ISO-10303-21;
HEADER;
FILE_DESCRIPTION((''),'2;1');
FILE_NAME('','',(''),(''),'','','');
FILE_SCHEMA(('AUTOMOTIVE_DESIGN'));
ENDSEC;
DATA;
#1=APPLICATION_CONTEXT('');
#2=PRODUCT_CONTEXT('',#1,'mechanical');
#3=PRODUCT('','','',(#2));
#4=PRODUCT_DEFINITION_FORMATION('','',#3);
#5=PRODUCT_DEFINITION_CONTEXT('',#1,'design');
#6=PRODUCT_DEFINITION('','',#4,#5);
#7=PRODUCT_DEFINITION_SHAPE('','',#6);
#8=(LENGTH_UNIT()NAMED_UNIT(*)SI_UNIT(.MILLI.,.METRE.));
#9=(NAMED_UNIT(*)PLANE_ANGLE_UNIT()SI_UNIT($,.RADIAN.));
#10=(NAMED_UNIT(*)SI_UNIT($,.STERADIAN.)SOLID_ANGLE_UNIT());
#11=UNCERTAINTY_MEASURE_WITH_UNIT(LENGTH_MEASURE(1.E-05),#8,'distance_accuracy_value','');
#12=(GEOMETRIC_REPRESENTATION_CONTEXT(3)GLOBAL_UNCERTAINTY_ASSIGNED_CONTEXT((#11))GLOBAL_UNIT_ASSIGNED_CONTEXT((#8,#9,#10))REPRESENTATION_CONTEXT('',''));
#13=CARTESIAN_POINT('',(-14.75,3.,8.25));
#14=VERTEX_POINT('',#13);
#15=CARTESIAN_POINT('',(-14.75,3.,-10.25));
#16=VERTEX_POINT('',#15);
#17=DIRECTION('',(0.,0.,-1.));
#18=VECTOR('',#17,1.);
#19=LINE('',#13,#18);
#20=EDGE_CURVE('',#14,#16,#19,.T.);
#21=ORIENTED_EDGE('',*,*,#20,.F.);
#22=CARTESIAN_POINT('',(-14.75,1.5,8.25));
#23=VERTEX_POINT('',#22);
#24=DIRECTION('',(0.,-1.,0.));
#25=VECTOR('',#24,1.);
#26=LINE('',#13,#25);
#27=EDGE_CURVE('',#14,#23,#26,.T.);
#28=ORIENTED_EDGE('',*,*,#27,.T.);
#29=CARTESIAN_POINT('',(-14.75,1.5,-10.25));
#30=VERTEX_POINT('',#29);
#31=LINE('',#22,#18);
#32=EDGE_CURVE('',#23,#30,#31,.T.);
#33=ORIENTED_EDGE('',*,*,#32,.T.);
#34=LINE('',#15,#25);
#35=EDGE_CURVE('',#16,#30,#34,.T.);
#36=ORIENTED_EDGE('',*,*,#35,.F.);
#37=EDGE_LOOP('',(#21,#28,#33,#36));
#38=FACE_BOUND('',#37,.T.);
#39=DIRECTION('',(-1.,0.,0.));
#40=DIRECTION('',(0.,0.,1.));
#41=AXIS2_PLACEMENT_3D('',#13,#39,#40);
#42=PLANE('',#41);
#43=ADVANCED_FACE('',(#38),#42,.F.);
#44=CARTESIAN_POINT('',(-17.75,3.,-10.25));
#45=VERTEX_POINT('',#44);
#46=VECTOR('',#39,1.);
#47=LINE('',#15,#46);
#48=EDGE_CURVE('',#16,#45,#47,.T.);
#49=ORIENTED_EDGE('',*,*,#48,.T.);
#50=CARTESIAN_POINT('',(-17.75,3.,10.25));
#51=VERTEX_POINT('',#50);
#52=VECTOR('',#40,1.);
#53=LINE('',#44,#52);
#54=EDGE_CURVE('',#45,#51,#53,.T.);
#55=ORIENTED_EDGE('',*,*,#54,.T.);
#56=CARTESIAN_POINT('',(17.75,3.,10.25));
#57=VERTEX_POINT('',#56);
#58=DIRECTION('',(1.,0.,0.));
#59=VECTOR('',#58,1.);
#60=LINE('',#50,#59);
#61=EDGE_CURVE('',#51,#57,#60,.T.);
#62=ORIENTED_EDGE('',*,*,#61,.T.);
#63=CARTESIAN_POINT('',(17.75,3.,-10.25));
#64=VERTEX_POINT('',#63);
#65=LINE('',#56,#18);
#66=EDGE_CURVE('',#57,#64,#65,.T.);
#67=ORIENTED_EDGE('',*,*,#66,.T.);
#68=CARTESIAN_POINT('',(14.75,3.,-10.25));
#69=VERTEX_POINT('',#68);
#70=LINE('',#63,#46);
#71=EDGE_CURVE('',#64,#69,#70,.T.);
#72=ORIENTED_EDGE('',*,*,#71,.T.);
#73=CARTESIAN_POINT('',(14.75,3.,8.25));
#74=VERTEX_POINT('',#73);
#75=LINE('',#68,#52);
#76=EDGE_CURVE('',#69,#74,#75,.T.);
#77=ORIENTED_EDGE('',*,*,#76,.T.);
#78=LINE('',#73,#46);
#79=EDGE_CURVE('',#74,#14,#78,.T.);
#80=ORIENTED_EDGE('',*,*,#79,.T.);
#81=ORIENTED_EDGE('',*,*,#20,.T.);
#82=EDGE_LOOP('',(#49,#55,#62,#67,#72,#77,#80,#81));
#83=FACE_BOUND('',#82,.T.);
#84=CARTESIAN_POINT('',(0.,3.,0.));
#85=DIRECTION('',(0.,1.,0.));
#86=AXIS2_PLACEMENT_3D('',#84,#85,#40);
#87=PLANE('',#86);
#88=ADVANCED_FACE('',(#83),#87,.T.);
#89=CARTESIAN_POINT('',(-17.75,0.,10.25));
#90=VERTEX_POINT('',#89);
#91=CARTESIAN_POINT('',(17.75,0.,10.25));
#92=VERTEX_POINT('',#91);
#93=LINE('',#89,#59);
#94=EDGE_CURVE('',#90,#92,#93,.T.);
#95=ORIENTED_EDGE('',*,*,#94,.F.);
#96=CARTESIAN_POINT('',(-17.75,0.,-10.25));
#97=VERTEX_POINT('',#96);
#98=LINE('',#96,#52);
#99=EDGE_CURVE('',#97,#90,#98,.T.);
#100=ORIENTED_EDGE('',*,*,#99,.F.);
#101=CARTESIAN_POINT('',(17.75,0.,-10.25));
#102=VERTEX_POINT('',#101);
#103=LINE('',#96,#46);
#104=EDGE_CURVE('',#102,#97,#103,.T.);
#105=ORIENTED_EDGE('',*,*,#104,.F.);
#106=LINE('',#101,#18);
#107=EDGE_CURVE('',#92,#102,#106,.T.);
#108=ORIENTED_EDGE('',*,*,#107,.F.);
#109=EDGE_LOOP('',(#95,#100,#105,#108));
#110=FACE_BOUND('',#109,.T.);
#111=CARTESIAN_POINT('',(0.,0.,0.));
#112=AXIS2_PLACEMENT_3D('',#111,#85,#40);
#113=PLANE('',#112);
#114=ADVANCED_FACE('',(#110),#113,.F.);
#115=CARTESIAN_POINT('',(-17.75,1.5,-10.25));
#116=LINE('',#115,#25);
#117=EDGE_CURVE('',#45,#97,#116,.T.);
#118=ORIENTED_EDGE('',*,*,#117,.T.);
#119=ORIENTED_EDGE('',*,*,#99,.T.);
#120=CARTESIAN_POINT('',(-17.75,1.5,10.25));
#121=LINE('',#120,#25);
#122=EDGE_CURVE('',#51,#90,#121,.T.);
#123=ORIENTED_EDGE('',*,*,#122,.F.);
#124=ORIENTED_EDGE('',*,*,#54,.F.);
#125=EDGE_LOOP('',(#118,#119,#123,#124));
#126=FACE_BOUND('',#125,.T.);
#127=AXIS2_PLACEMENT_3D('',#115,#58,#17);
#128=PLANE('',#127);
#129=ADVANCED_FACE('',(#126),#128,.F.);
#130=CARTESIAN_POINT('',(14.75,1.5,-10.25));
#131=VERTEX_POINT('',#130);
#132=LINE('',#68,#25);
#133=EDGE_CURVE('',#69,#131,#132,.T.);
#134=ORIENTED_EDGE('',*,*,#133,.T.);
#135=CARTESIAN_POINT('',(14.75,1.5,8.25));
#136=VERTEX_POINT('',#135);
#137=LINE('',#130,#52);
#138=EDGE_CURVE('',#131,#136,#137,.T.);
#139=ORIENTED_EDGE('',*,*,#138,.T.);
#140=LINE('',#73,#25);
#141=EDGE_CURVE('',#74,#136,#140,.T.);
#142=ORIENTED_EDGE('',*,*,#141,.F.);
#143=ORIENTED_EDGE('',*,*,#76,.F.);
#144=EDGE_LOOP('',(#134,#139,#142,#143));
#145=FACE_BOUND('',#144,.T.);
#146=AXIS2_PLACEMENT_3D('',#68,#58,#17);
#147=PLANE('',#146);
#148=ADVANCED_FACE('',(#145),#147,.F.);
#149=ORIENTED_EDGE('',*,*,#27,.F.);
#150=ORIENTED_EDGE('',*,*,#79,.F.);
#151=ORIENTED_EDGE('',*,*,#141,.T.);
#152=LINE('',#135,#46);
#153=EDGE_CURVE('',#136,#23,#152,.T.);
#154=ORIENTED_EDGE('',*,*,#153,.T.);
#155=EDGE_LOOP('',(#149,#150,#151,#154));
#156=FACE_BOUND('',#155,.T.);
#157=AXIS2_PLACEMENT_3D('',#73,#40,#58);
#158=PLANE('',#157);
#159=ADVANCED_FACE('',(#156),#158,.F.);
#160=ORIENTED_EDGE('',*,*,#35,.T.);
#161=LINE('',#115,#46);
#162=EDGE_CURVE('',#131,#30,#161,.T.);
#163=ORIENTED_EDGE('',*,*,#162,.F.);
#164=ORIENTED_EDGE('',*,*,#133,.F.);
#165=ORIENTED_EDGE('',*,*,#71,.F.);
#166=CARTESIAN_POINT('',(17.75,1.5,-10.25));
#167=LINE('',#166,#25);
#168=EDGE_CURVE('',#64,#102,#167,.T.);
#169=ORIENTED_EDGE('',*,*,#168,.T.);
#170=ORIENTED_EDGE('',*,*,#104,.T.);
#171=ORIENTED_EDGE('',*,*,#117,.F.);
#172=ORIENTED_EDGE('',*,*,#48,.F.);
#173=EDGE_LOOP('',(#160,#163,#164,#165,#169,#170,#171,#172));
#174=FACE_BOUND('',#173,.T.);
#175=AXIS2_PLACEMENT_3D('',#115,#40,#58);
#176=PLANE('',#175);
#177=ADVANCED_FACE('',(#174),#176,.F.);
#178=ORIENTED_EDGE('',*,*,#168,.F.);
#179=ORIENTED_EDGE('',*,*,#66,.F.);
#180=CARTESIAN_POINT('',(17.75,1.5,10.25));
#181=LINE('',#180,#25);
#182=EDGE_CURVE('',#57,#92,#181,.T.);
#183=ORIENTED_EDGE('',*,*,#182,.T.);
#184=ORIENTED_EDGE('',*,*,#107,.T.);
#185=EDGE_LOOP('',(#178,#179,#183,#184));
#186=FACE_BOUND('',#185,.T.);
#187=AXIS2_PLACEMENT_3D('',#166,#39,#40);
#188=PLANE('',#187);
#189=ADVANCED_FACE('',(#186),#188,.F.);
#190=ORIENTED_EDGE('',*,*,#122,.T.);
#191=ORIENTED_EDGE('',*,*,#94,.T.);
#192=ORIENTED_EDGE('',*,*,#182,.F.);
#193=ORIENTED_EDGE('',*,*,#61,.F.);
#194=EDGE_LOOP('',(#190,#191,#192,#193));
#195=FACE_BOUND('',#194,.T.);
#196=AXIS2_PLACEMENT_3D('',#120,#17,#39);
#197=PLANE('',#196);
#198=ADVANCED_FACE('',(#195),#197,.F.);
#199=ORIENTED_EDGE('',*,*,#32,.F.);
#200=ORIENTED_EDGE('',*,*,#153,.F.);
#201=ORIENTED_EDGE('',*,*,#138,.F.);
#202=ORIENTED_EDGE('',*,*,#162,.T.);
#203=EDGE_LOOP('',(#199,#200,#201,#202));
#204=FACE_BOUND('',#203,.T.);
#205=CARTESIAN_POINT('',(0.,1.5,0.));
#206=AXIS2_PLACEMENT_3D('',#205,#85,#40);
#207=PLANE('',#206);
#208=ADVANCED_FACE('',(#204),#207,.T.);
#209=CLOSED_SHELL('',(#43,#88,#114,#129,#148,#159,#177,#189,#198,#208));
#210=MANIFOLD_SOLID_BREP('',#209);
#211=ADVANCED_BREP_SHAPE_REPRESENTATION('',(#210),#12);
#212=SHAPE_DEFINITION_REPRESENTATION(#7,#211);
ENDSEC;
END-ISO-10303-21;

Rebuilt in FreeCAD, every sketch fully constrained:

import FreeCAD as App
import Part
import Sketcher
from FreeCAD import Vector


def add_polygon(sketch, points):
    """Adds a closed chain of lines whose ends are joined by coincident constraints."""
    first, n = sketch.GeometryCount, len(points)
    for a, b in zip(points, points[1:] + points[:1]):
        sketch.addGeometry(Part.LineSegment(App.Vector(*a, 0), App.Vector(*b, 0)), False)
    for i in range(n):
        sketch.addConstraint(Sketcher.Constraint("Coincident", first + i, 2, first + (i + 1) % n, 1))

doc = App.newDocument("Part")
body = doc.addObject("PartDesign::Body", "Body")

# Sketch on XZ plane
sketch1 = body.newObject("Sketcher::SketchObject", "Sketch")
sketch1.AttachmentSupport = (doc.getObject("XZ_Plane"), [""])
sketch1.MapMode = "FlatFace"
add_polygon(sketch1, [(-18, -10), (-18, 10), (18, 10), (18, -10)])  # lines 0-3
sketch1.addConstraint([
    Sketcher.Constraint("Vertical", 0),
    Sketcher.Constraint("Horizontal", 1),
    Sketcher.Constraint("Vertical", 2),
    Sketcher.Constraint("Horizontal", 3),
    Sketcher.Constraint("Symmetric", 0, 2, 2, 2, -1, 1),
    Sketcher.Constraint("DistanceX", 1, 1, 1, 2, 35.5),
    Sketcher.Constraint("DistanceY", 0, 1, 0, 2, 20.5),
])
pad1 = body.newObject("PartDesign::Pad", "Pad")
pad1.Profile = sketch1
pad1.Length = 1.5
pad1.Reversed = True

# Sketch on XZ plane
sketch2 = body.newObject("Sketcher::SketchObject", "Sketch001")
sketch2.AttachmentSupport = (doc.getObject("XZ_Plane"), [""])
sketch2.MapMode = "FlatFace"
sketch2.AttachmentOffset = App.Placement(Vector(0, 0, -1.5), App.Rotation())
add_polygon(sketch2, [(17.8, -10.2), (14.8, -10.2), (14.8, 8.2), (-14.8, 8.2), (-14.8, -10.2), (-17.8, -10.2), (-17.8, 10.2), (17.8, 10.2)])  # lines 0-7
sketch2.addConstraint([
    Sketcher.Constraint("Horizontal", 0),
    Sketcher.Constraint("Vertical", 1),
    Sketcher.Constraint("Horizontal", 2),
    Sketcher.Constraint("Vertical", 3),
    Sketcher.Constraint("Horizontal", 4),
    Sketcher.Constraint("Vertical", 5),
    Sketcher.Constraint("Horizontal", 6),
    Sketcher.Constraint("Vertical", 7),
    Sketcher.Constraint("Symmetric", 4, 2, 6, 2, -1, 1),
    Sketcher.Constraint("Symmetric", 0, 2, 3, 2, -2),
    Sketcher.Constraint("DistanceX", 0, 2, 0, 1, 3.0),
    Sketcher.Constraint("DistanceX", 2, 2, 2, 1, 29.5),
    Sketcher.Constraint("DistanceY", 1, 1, 1, 2, 18.5),
    Sketcher.Constraint("DistanceY", 5, 1, 5, 2, 20.5),
])
pad2 = body.newObject("PartDesign::Pad", "Pad001")
pad2.Profile = sketch2
pad2.Length = 1.5
pad2.Reversed = True

doc.recompute()
